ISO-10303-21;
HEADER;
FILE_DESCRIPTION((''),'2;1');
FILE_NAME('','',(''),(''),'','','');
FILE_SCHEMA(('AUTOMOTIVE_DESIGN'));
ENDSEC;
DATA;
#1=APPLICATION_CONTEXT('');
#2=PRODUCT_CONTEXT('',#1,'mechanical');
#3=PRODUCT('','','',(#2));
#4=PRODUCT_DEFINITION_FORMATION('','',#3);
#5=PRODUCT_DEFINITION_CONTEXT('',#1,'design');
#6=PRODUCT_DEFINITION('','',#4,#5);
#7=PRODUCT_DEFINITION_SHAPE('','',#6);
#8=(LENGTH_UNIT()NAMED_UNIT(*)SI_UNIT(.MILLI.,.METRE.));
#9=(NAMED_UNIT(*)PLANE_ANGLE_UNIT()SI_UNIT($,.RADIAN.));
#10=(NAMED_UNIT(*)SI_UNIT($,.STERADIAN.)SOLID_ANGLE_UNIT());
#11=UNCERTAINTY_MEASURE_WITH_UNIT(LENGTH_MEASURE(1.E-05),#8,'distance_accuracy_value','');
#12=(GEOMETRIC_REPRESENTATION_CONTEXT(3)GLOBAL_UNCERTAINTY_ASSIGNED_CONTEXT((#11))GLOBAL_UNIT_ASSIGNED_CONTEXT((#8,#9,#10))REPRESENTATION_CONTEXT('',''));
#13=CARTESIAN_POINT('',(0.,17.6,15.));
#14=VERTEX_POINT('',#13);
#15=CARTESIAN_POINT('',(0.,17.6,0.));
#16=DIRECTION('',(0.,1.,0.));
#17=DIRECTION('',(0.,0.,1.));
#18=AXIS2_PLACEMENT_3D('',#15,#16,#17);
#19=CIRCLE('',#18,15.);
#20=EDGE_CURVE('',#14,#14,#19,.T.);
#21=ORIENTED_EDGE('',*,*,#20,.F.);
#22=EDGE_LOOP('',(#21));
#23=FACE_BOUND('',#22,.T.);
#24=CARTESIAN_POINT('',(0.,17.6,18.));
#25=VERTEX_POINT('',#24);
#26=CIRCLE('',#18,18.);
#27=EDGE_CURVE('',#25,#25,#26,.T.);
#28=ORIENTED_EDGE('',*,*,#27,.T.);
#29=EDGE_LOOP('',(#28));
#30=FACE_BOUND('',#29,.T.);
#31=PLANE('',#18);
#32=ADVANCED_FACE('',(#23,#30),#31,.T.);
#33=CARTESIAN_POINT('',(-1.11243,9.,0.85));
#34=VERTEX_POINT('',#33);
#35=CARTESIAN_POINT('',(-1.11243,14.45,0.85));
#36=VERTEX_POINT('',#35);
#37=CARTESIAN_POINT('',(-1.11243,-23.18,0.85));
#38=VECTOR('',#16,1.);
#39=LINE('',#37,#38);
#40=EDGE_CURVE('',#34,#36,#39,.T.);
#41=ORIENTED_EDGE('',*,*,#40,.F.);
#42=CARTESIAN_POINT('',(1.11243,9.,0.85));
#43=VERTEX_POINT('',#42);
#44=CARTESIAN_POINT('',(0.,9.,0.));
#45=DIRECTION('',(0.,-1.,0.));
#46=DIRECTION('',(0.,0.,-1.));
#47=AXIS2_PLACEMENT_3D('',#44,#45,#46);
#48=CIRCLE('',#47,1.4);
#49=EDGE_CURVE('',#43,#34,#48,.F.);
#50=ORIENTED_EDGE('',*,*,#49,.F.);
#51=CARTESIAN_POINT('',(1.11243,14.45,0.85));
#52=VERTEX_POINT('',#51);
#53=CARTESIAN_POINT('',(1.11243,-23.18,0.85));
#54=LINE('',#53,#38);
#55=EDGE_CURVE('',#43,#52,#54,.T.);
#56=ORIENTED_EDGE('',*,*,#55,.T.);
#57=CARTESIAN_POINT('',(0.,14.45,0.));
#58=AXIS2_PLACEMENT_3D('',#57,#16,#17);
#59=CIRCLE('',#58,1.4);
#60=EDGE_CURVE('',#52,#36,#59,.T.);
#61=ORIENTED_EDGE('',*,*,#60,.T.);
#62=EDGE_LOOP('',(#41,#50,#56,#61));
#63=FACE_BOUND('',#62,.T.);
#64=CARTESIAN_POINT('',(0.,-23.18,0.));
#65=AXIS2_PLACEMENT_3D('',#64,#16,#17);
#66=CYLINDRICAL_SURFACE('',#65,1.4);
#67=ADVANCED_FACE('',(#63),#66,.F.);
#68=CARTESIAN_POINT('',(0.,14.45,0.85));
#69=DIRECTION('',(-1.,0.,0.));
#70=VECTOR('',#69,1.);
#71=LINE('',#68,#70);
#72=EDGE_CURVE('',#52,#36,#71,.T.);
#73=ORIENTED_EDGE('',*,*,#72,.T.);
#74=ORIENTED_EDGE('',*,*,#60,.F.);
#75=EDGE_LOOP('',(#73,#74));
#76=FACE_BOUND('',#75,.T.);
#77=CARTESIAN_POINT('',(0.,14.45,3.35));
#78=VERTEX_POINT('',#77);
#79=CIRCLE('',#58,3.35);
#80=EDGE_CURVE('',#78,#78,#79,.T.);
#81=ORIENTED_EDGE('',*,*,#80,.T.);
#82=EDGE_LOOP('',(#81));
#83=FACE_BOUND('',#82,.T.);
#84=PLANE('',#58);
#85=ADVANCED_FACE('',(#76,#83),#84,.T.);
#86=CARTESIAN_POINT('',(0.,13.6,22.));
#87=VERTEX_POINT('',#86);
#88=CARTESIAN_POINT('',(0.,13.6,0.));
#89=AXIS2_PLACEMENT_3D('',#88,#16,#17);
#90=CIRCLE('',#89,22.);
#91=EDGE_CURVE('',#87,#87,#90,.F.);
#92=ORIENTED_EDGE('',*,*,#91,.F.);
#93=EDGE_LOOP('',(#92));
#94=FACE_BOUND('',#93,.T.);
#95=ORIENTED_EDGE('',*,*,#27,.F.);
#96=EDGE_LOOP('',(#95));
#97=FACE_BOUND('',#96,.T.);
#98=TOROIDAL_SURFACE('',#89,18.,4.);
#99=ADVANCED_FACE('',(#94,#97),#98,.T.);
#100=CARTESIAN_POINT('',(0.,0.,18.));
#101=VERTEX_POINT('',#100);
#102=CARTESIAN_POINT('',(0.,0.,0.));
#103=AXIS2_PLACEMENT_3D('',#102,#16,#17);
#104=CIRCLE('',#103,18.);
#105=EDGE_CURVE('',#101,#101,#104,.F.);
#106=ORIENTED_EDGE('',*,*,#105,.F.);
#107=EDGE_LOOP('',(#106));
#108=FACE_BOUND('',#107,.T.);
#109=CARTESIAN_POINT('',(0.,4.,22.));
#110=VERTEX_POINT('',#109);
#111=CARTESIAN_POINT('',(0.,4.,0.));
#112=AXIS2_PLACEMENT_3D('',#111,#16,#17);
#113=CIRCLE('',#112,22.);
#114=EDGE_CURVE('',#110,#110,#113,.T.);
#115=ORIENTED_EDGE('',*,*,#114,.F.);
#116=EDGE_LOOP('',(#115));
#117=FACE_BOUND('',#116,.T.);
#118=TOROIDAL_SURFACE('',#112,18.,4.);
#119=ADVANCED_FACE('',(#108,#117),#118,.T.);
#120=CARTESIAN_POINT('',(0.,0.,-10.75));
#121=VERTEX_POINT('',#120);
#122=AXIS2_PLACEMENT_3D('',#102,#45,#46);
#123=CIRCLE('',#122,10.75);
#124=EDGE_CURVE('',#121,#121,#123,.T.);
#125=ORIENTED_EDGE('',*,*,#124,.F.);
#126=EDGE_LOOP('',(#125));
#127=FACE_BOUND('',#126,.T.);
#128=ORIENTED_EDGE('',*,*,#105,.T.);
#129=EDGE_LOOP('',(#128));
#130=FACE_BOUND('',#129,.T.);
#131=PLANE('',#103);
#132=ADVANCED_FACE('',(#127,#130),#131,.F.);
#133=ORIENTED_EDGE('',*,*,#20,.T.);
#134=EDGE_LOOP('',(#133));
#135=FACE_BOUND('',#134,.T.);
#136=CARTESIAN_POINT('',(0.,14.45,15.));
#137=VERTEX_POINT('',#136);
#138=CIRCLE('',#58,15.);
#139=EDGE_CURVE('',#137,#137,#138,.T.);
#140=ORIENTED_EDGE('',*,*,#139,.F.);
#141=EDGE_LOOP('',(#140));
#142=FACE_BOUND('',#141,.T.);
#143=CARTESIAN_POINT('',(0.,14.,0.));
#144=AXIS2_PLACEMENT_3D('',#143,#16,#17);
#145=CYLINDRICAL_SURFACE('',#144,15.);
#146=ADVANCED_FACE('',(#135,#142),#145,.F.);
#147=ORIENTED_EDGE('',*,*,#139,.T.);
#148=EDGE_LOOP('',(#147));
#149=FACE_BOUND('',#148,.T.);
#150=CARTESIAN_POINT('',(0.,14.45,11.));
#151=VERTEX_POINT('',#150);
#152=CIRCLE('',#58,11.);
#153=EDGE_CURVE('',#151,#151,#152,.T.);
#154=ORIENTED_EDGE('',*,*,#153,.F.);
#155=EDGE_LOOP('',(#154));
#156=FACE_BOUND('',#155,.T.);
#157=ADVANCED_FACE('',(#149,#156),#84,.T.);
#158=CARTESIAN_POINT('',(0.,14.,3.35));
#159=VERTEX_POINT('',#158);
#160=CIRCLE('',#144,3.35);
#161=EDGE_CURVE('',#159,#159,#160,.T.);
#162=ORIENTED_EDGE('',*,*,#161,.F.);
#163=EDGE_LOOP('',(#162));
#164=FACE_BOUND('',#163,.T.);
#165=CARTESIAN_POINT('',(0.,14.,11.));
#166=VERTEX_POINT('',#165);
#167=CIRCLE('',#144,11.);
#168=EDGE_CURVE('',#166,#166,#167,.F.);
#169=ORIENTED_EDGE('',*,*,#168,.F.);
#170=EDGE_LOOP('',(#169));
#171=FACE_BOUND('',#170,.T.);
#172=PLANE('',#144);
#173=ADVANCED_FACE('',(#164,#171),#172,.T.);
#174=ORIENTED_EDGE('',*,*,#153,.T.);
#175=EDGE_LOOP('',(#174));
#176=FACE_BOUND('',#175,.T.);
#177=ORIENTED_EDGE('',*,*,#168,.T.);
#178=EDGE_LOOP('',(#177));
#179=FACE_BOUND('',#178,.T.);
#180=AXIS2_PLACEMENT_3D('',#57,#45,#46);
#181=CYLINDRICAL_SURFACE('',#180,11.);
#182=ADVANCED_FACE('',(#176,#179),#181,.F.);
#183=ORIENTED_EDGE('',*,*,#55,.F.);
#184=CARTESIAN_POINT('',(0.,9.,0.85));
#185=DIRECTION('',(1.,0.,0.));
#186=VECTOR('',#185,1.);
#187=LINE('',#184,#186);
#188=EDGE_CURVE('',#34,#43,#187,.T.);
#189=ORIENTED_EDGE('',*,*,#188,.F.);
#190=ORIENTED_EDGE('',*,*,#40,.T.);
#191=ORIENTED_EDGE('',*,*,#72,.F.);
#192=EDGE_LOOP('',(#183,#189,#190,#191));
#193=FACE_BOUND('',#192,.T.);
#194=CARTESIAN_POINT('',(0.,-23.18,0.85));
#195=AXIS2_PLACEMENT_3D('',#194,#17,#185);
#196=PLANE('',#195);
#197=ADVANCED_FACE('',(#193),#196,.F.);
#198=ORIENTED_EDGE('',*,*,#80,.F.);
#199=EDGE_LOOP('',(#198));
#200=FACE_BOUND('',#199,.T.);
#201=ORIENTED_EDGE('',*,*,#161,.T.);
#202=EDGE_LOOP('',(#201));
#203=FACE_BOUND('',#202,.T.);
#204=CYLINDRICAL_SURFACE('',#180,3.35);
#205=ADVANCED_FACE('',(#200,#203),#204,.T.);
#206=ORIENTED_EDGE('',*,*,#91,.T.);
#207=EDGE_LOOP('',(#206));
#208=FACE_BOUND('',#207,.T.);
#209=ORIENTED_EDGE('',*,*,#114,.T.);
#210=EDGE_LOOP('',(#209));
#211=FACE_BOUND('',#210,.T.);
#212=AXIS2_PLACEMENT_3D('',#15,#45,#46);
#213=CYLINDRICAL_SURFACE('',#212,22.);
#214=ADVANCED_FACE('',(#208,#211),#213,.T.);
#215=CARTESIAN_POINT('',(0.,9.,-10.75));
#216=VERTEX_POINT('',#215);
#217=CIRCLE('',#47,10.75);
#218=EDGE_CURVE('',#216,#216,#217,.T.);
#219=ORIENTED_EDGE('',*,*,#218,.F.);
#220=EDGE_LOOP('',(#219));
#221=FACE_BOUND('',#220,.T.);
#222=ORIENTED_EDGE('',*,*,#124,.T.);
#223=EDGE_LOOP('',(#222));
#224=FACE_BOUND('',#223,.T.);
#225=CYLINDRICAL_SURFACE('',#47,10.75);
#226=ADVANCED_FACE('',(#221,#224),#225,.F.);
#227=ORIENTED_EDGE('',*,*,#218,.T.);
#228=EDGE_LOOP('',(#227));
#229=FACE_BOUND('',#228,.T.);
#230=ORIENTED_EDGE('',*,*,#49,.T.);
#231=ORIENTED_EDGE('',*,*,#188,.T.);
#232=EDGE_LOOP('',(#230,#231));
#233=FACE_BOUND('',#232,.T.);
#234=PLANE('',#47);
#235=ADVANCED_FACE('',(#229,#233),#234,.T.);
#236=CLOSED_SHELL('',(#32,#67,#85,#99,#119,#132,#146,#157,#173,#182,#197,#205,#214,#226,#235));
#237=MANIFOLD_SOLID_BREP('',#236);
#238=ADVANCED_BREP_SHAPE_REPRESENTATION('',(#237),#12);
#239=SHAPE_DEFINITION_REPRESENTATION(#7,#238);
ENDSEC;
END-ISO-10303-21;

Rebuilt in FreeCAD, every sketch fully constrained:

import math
import FreeCAD as App
import Part
import Sketcher
Q = App.Units.Quantity


def edges_at(feature, points):
    """Names of the edges that pass closest to the given points."""
    edges = feature.Shape.Edges
    near = lambda p: min(range(len(edges)), key=lambda i: edges[i].distToShape(Part.Vertex(*p))[0])
    return sorted({f"Edge{near(p) + 1}" for p in points})

doc = App.newDocument("Part")
body = doc.addObject("PartDesign::Body", "Body")

sketch1 = doc.addObject("Sketcher::SketchObject", "Sketch")
body.addObject(sketch1)
sketch1.AttachmentSupport = (doc.XZ_Plane, [""])
sketch1.MapMode = "FlatFace"
sketch1.addGeometry(Part.Circle(App.Vector(0, 0, 0), App.Vector(0, 0, 1), 22), False)
sketch1.addConstraint([
    Sketcher.Constraint("Coincident", 0, 3, -1, 1),
    Sketcher.Constraint("Diameter", 0, Q("44 mm")),
])
pad1 = doc.addObject("PartDesign::Pad", "Pad")
body.addObject(pad1)
pad1.Profile = sketch1
pad1.Length = 17.6
pad1.Reversed = True

sketch2 = doc.addObject("Sketcher::SketchObject", "Sketch001")
body.addObject(sketch2)
sketch2.AttachmentSupport = (doc.XZ_Plane, [""])
sketch2.MapMode = "FlatFace"
sketch2.AttachmentOffset = App.Placement(App.Vector(0, 0, -17.6), App.Rotation())
sketch2.addGeometry(Part.Circle(App.Vector(0, 0, 0), App.Vector(0, 0, 1), 15), False)
sketch2.addConstraint([
    Sketcher.Constraint("Coincident", 0, 3, -1, 1),
    Sketcher.Constraint("Diameter", 0, Q("30 mm")),
])
pocket1 = doc.addObject("PartDesign::Pocket", "Pocket")
body.addObject(pocket1)
pocket1.Profile = sketch2
pocket1.Length = 3.6
pocket1.Reversed = True

sketch3 = doc.addObject("Sketcher::SketchObject", "Sketch002")
body.addObject(sketch3)
sketch3.AttachmentSupport = (doc.XZ_Plane, [""])
sketch3.MapMode = "FlatFace"
sketch3.AttachmentOffset = App.Placement(App.Vector(0, 0, -14), App.Rotation())
sketch3.addGeometry([
    Part.ArcOfCircle(Part.Circle(App.Vector(0, 0, 0), App.Vector(0, 0, 1), 1.4), math.radians(143), math.radians(360)),
    Part.LineSegment(App.Vector(-1.1, 0.8, 0), App.Vector(1.1, 0.8, 0)),
    Part.ArcOfCircle(Part.Circle(App.Vector(0, 0, 0), App.Vector(0, 0, 1), 1.4), math.radians(0), math.radians(37)),
], False)
sketch3.addConstraint([
    Sketcher.Constraint("Coincident", 0, 1, 1, 1),
    Sketcher.Constraint("Coincident", 1, 2, 2, 2),
    Sketcher.Constraint("Tangent", 2, 1, 0, 2),
    Sketcher.Constraint("Horizontal", 1),
    Sketcher.Constraint("Coincident", 0, 3, -1, 1),
    Sketcher.Constraint("Equal", 0, 2),
    Sketcher.Constraint("PointOnObject", 2, 1, -1),
    Sketcher.Constraint("Radius", 0, Q("1.4 mm")),
    Sketcher.Constraint("DistanceY", -1, 1, 0, 1, Q("0.85 mm")),
])
pocket2 = doc.addObject("PartDesign::Pocket", "Pocket001")
body.addObject(pocket2)
pocket2.Profile = sketch3
pocket2.Length = 37.18
pocket2.Reversed = True

sketch4 = doc.addObject("Sketcher::SketchObject", "Sketch003")
body.addObject(sketch4)
sketch4.AttachmentSupport = (doc.XZ_Plane, [""])
sketch4.MapMode = "FlatFace"
sketch4.AttachmentOffset = App.Placement(App.Vector(0, 0, -14.45), App.Rotation())
sketch4.addGeometry([
    Part.Circle(App.Vector(0, 0, 0), App.Vector(0, 0, 1), 15),
    Part.Circle(App.Vector(0, 0, 0), App.Vector(0, 0, 1), 11),
    Part.Circle(App.Vector(0, 0, 0), App.Vector(0, 0, 1), 3.4),
    Part.ArcOfCircle(Part.Circle(App.Vector(0, 0, 0), App.Vector(0, 0, 1), 1.4), math.radians(143), math.radians(397)),
    Part.LineSegment(App.Vector(1.1, 0.8, 0), App.Vector(-1.1, 0.8, 0)),
], False)
sketch4.addConstraint([
    Sketcher.Constraint("Coincident", 3, 1, 4, 2),
    Sketcher.Constraint("Coincident", 4, 1, 3, 2),
    Sketcher.Constraint("Horizontal", 4),
    Sketcher.Constraint("Coincident", 0, 3, -1, 1),
    Sketcher.Constraint("Coincident", 1, 3, -1, 1),
    Sketcher.Constraint("Coincident", 2, 3, -1, 1),
    Sketcher.Constraint("Coincident", 3, 3, -1, 1),
    Sketcher.Constraint("Diameter", 0, Q("30 mm")),
    Sketcher.Constraint("Diameter", 1, Q("22 mm")),
    Sketcher.Constraint("Diameter", 2, Q("6.7 mm")),
    Sketcher.Constraint("Radius", 3, Q("1.4 mm")),
    Sketcher.Constraint("DistanceY", -1, 1, 3, 1, Q("0.85 mm")),
])
pad2 = doc.addObject("PartDesign::Pad", "Pad001")
body.addObject(pad2)
pad2.Profile = sketch4
pad2.Length = 0.45

sketch5 = doc.addObject("Sketcher::SketchObject", "Sketch004")
body.addObject(sketch5)
sketch5.AttachmentSupport = (doc.XZ_Plane, [""])
sketch5.MapMode = "FlatFace"
sketch5.addGeometry(Part.Circle(App.Vector(0, 0, 0), App.Vector(0, 0, 1), 11), False)
sketch5.addConstraint([
    Sketcher.Constraint("Coincident", 0, 3, -1, 1),
    Sketcher.Constraint("Diameter", 0, Q("21.5 mm")),
])
pocket3 = doc.addObject("PartDesign::Pocket", "Pocket002")
body.addObject(pocket3)
pocket3.Profile = sketch5
pocket3.Length = 9
doc.recompute()

fillet = doc.addObject("PartDesign::Fillet", "Fillet")
body.addObject(fillet)
fillet.Base = (pocket3, edges_at(pocket3, [(0, 0, -22), (0, 17.6, -22)]))
fillet.Radius = 4

doc.recompute()
